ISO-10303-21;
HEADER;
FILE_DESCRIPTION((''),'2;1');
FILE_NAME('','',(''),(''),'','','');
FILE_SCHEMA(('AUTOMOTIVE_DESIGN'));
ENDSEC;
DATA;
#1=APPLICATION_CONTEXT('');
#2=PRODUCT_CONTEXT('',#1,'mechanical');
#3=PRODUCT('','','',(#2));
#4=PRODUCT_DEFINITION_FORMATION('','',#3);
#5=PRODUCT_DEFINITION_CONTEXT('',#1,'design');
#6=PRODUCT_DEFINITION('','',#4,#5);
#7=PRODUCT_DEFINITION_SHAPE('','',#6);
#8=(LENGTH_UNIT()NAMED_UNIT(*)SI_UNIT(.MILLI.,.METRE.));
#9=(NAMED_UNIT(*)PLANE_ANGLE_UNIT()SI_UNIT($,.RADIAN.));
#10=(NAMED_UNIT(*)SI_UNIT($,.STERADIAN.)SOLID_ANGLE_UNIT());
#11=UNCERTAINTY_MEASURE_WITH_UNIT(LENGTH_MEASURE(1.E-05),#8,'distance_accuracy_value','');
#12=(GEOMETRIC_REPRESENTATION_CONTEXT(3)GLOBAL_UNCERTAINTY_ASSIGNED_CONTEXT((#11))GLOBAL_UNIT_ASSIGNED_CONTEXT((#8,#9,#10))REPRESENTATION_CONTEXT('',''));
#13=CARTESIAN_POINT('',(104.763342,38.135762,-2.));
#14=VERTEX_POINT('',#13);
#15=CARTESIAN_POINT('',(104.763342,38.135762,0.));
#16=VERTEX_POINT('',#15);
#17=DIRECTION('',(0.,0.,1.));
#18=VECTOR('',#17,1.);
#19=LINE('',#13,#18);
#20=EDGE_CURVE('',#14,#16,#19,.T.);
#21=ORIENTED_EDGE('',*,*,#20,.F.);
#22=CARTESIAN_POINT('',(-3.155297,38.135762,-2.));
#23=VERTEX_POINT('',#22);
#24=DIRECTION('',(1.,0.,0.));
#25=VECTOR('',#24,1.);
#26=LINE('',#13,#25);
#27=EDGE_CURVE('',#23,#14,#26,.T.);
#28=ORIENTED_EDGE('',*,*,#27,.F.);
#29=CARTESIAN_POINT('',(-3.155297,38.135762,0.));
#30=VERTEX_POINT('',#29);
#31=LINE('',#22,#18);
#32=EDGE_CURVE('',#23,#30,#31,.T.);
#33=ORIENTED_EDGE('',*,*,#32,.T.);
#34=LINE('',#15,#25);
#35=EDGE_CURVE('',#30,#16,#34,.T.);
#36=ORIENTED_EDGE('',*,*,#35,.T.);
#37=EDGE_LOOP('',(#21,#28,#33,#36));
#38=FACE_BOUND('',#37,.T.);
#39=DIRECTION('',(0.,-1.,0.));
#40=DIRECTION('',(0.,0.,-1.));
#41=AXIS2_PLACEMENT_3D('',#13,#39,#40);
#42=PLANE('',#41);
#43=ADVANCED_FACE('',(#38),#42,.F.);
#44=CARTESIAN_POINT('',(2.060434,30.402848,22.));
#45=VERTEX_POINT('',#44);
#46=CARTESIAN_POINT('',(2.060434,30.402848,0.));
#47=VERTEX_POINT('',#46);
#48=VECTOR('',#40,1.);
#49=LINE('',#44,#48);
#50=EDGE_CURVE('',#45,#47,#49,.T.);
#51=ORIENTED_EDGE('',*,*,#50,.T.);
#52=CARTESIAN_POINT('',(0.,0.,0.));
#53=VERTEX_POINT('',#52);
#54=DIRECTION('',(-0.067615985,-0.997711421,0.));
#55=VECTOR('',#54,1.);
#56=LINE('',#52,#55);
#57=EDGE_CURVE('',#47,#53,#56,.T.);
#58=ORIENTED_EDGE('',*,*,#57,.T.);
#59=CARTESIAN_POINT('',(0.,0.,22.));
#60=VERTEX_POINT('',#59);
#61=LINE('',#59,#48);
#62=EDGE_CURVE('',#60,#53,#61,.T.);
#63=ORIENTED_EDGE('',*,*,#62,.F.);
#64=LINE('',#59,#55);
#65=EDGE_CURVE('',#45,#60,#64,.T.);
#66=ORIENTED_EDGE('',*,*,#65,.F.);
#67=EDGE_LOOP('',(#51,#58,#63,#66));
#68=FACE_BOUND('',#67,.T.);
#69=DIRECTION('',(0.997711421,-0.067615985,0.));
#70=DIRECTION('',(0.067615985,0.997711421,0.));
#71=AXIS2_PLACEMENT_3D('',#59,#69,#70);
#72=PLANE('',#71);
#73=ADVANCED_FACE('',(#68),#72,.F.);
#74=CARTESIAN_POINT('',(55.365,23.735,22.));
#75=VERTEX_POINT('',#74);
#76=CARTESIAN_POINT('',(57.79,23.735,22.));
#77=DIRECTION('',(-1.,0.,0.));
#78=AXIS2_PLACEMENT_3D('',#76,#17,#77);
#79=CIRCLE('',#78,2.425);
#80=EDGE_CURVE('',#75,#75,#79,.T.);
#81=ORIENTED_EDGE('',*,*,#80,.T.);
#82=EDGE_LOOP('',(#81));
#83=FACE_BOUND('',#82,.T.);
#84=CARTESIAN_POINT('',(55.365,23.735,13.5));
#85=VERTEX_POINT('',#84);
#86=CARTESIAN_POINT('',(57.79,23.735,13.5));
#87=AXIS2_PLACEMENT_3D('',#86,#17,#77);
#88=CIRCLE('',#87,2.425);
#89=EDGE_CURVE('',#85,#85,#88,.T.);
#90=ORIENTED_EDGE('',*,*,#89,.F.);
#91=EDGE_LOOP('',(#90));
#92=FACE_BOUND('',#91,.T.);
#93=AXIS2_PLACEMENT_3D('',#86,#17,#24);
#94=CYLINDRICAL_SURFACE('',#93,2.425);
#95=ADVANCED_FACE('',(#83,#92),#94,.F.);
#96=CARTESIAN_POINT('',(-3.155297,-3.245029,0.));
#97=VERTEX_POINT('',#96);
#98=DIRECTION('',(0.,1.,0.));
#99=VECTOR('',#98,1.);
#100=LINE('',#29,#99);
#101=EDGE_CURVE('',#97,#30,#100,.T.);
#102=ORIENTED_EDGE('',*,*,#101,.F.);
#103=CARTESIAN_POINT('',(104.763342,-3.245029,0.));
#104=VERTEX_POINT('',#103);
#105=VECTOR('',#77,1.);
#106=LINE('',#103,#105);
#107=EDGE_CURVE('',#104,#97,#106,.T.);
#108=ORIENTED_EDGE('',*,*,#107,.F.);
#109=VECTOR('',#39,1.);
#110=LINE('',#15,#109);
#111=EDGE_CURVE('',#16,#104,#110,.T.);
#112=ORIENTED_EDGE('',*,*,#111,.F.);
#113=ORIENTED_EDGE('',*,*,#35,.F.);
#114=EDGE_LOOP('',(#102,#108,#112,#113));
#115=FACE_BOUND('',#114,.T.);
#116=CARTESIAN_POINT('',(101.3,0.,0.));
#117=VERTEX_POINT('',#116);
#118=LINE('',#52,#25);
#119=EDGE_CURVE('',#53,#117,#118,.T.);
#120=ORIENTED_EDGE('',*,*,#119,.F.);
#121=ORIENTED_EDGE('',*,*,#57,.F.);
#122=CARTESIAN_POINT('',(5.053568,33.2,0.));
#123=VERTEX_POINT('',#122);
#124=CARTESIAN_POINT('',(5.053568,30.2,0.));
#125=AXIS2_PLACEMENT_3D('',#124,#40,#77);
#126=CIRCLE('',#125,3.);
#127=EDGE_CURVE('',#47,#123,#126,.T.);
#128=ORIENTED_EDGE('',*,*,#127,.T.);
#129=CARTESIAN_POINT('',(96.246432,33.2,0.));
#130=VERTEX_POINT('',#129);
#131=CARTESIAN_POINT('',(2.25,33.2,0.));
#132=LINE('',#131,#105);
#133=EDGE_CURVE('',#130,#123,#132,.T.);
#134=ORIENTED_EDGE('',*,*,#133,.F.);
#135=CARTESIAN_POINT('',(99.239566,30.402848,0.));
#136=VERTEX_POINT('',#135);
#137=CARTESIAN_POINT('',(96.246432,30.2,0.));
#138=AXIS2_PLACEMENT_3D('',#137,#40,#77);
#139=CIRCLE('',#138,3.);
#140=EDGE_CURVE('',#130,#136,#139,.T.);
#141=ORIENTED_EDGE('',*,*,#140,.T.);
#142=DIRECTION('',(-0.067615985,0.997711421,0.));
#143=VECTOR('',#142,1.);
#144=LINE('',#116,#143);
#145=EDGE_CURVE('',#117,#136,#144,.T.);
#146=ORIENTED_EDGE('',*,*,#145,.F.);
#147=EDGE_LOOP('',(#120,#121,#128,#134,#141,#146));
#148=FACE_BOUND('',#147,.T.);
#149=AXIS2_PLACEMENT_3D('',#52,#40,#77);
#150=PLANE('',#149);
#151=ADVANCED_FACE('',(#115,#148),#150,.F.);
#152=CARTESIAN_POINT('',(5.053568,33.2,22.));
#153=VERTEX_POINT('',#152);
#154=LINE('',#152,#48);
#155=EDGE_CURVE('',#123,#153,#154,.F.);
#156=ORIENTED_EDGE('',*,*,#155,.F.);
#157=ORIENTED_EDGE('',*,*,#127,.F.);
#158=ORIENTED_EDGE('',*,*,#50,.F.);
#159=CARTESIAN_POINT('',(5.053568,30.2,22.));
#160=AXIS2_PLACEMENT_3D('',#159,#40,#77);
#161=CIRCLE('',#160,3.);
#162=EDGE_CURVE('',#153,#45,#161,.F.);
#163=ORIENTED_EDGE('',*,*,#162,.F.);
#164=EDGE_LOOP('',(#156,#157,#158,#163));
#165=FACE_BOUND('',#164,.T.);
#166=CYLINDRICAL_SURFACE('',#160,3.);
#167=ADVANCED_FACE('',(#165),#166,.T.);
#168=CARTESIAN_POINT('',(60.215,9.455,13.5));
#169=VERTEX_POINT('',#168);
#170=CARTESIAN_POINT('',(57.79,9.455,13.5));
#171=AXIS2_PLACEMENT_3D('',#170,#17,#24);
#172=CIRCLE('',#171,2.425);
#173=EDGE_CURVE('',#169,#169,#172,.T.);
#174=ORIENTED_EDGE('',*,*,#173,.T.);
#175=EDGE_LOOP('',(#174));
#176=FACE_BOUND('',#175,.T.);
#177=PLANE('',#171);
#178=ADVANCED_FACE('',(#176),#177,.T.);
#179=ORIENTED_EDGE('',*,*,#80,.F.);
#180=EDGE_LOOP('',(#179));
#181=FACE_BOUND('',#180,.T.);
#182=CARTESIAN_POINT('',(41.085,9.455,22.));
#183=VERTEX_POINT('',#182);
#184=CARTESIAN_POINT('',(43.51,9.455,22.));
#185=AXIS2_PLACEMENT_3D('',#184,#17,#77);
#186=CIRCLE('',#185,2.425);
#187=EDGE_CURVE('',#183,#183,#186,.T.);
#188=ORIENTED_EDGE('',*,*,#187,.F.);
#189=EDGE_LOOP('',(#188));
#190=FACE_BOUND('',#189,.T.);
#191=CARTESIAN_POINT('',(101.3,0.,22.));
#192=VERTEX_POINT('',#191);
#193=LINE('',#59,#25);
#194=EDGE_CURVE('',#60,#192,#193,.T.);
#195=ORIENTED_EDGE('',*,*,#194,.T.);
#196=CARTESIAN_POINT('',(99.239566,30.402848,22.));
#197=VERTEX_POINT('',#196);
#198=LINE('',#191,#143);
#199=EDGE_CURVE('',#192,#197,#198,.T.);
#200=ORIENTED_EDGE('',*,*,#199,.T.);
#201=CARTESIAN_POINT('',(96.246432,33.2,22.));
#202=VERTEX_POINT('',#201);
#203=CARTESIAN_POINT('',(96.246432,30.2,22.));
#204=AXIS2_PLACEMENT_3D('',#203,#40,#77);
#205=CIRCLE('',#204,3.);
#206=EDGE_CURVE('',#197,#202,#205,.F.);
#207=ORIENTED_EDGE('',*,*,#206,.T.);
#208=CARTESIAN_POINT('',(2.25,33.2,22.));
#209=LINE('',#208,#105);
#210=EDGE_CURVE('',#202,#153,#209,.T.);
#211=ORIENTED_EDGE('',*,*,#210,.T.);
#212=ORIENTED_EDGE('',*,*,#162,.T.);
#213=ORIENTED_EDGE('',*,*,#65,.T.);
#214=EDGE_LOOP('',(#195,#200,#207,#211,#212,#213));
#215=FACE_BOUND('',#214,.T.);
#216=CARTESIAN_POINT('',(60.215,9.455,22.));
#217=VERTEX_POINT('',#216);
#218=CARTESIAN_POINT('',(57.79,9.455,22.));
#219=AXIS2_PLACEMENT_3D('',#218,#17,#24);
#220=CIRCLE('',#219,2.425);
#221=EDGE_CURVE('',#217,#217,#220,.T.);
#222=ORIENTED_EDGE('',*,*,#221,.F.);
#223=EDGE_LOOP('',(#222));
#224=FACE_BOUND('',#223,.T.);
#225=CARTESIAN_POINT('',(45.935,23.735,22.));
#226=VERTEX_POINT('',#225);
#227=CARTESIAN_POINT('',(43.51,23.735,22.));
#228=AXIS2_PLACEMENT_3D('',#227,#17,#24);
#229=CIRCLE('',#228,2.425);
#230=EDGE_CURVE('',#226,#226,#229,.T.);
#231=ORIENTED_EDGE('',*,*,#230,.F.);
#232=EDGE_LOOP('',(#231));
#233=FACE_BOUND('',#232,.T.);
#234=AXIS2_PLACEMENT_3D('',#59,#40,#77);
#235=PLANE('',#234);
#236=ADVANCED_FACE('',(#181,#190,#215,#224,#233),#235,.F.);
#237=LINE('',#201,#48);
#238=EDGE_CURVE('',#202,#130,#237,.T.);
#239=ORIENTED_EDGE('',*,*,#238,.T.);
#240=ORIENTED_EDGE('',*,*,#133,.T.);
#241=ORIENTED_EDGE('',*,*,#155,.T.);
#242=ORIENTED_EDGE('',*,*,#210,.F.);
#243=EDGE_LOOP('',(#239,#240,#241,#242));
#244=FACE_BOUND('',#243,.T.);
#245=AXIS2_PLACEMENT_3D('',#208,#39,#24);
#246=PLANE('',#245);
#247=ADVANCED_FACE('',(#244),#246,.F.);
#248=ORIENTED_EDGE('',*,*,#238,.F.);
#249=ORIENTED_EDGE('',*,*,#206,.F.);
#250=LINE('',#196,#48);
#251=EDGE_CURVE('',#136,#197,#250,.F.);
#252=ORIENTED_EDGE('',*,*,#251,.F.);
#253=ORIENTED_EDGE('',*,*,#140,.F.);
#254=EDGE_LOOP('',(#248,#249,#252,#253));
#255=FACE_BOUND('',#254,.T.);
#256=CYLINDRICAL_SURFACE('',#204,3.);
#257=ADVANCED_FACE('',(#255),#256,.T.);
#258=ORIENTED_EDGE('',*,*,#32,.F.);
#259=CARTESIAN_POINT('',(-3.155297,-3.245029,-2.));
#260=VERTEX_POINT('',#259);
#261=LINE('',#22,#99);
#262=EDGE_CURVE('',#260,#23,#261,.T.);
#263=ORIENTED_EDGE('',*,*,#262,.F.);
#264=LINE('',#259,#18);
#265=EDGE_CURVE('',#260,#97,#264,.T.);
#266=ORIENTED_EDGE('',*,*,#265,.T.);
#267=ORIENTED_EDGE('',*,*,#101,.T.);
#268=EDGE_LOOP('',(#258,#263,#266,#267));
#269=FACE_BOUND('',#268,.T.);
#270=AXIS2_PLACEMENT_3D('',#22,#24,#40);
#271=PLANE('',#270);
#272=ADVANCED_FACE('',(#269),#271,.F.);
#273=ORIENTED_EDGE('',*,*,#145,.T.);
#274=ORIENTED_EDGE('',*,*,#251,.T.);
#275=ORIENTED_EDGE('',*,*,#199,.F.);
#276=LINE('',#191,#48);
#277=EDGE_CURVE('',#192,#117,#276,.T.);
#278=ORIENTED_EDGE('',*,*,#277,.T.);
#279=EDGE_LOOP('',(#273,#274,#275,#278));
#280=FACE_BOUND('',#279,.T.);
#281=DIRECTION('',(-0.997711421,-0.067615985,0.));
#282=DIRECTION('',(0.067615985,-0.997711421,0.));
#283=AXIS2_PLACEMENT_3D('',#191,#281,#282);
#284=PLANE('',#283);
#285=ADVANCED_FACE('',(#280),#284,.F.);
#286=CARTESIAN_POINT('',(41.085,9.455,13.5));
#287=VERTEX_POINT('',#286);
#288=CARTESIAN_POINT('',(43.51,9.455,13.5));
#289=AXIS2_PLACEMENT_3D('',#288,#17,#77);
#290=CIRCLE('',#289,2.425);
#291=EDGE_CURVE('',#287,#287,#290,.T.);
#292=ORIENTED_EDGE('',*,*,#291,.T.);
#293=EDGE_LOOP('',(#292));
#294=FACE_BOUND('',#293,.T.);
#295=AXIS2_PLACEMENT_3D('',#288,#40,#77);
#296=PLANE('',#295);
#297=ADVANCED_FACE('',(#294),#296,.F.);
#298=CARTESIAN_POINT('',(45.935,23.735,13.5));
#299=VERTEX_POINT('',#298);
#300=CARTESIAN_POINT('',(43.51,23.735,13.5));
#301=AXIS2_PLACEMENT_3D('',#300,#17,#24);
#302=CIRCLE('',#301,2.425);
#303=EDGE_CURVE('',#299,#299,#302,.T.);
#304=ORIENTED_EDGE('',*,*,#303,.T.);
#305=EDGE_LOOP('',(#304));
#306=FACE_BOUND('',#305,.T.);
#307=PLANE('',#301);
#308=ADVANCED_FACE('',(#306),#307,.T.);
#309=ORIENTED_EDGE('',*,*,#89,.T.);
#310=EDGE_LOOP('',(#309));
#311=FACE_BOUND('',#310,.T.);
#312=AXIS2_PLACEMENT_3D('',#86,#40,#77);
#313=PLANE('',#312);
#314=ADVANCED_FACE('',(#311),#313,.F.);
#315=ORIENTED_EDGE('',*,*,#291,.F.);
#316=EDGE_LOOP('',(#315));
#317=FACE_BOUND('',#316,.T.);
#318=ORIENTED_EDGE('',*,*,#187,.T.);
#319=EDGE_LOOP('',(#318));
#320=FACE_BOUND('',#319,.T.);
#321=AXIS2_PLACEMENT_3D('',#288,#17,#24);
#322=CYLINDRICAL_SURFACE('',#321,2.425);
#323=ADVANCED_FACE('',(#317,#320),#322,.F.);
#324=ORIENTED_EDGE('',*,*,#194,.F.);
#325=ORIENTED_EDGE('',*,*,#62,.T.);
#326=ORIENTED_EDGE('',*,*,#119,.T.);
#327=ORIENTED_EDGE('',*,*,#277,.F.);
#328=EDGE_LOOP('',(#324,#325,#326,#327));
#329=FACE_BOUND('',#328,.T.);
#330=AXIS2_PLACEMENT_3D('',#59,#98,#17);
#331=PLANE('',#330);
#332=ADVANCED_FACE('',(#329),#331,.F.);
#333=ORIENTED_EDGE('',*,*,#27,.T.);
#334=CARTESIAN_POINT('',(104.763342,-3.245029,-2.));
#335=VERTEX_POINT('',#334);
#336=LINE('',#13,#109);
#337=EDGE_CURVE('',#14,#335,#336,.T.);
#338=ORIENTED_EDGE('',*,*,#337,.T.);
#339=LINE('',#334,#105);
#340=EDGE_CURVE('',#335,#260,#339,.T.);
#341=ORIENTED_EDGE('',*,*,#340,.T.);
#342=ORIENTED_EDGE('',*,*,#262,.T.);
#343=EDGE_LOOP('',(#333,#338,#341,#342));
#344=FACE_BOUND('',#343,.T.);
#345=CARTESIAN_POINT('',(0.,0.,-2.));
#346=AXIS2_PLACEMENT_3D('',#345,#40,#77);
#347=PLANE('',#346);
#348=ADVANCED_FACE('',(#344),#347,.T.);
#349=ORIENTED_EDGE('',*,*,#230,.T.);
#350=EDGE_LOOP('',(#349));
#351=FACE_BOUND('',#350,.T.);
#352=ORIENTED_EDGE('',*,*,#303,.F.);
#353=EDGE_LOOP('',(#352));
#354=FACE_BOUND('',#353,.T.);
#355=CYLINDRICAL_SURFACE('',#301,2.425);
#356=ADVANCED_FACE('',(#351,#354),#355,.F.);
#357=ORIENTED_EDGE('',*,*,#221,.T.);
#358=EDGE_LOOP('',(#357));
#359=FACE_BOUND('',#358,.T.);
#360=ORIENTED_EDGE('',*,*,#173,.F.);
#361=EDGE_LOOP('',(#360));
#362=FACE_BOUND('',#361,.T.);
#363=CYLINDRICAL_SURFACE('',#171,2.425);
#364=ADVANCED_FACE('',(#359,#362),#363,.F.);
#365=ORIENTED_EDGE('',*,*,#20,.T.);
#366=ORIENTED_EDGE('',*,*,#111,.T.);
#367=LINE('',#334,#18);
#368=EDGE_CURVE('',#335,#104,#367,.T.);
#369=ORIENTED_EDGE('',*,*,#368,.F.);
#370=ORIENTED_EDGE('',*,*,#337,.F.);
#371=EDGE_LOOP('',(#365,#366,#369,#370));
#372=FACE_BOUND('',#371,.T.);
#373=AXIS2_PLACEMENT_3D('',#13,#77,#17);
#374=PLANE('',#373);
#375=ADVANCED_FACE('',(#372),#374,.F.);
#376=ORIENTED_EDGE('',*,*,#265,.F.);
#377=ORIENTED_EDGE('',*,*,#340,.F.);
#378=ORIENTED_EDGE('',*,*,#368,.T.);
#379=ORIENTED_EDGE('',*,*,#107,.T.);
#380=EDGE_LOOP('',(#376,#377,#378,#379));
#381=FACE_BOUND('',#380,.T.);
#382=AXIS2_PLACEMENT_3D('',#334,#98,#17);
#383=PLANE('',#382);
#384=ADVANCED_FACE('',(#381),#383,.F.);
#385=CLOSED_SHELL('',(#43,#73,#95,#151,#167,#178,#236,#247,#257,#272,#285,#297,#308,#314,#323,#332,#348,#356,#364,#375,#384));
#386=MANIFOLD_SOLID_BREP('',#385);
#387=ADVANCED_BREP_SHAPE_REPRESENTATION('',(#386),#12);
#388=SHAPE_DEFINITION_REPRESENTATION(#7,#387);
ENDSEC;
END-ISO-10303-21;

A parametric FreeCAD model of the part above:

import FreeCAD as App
import Part
import Sketcher
from FreeCAD import Vector
Q = App.Units.Quantity


def edges_at(feature, points):
    """Names of the edges that pass closest to the given points."""
    edges = feature.Shape.Edges
    near = lambda p: min(range(len(edges)), key=lambda i: edges[i].distToShape(Part.Vertex(*p))[0])
    return sorted({f"Edge{near(p) + 1}" for p in points})

doc = App.newDocument("Part")
body = doc.addObject("PartDesign::Body", "Body")

# Sketch on XY plane
sketch1 = body.newObject("Sketcher::SketchObject", "Sketch")
sketch1.AttachmentSupport = (doc.getObject("XY_Plane"), [""])
sketch1.MapMode = "FlatFace"
sketch1.addGeometry([
    Part.LineSegment(Vector(0, 0, 0), Vector(101.3, 0, 0)),
    Part.LineSegment(Vector(101.3, 0, 0), Vector(99.05, 33.2, 0)),
    Part.LineSegment(Vector(99.05, 33.2, 0), Vector(2.25, 33.2, 0)),
    Part.LineSegment(Vector(2.25, 33.2, 0), Vector(0, 0, 0)),
], False)
sketch1.addConstraint([
    Sketcher.Constraint("Coincident", 0, 2, 1, 1),
    Sketcher.Constraint("Coincident", 1, 2, 2, 1),
    Sketcher.Constraint("Coincident", 2, 2, 3, 1),
    Sketcher.Constraint("Coincident", 3, 2, 0, 1),
    Sketcher.Constraint("Horizontal", 0),
    Sketcher.Constraint("Horizontal", 2),
    Sketcher.Constraint("Coincident", 3, 2, -1, 1),
    Sketcher.Constraint("Equal", 1, 3),
    Sketcher.Constraint("DistanceX", 0, 1, 0, 2, Q("101.3 mm")),
    Sketcher.Constraint("DistanceX", 2, 2, 2, 1, Q("96.8 mm")),
    Sketcher.Constraint("DistanceY", -1, 1, 1, 2, Q("33.2 mm")),
])
pad1 = body.newObject("PartDesign::Pad", "Pad")
pad1.Profile = sketch1
pad1.Length = 22
doc.recompute()

fillet = body.newObject("PartDesign::Fillet", "Fillet")
fillet.Base = (pad1, edges_at(pad1, [(2.25, 33.2, 11), (99.05, 33.2, 11)]))
fillet.Radius = 3

# Sketch on XY plane
sketch2 = body.newObject("Sketcher::SketchObject", "Sketch001")
sketch2.AttachmentSupport = (doc.getObject("XY_Plane"), [""])
sketch2.MapMode = "FlatFace"
sketch2.addGeometry([
    Part.LineSegment(Vector(104.763342, 38.135762, 0), Vector(104.763342, -3.245029, 0)),
    Part.LineSegment(Vector(104.763342, -3.245029, 0), Vector(-3.155297, -3.245029, 0)),
    Part.LineSegment(Vector(-3.155297, -3.245029, 0), Vector(-3.155297, 38.135762, 0)),
    Part.LineSegment(Vector(-3.155297, 38.135762, 0), Vector(104.763342, 38.135762, 0)),
], False)
sketch2.addConstraint([
    Sketcher.Constraint("Coincident", 0, 2, 1, 1),
    Sketcher.Constraint("Coincident", 1, 2, 2, 1),
    Sketcher.Constraint("Coincident", 2, 2, 3, 1),
    Sketcher.Constraint("Coincident", 3, 2, 0, 1),
    Sketcher.Constraint("Vertical", 0),
    Sketcher.Constraint("Horizontal", 1),
    Sketcher.Constraint("Vertical", 2),
    Sketcher.Constraint("Horizontal", 3),
    Sketcher.Constraint("DistanceX", 1, 2, 1, 1, Q("107.918639 mm")),
    Sketcher.Constraint("DistanceY", 0, 2, 0, 1, Q("41.380791 mm")),
    Sketcher.Constraint("DistanceY", 0, 2, -1, 1, Q("3.245029 mm")),
    Sketcher.Constraint("DistanceX", -1, 1, 0, 2, Q("104.763342 mm")),
])
pad2 = body.newObject("PartDesign::Pad", "Pad001")
pad2.Profile = sketch2
pad2.Length = 2
pad2.Reversed = True

# Sketch on XY plane
sketch3 = body.newObject("Sketcher::SketchObject", "Sketch002")
sketch3.AttachmentSupport = (doc.getObject("XY_Plane"), [""])
sketch3.MapMode = "FlatFace"
sketch3.AttachmentOffset = App.Placement(Vector(0, 0, 22), App.Rotation())
sketch3.addGeometry([
    Part.Circle(Vector(57.79, 9.455, 0), Vector(0, 0, 1), 2.425),
    Part.Circle(Vector(43.51, 9.455, 0), Vector(0, 0, 1), 2.425),
    Part.Circle(Vector(57.79, 23.735, 0), Vector(0, 0, 1), 2.425),
    Part.Circle(Vector(43.51, 23.735, 0), Vector(0, 0, 1), 2.425),
], False)
sketch3.addConstraint([
    Sketcher.Constraint("Equal", 0, 1),
    Sketcher.Constraint("Equal", 1, 2),
    Sketcher.Constraint("Equal", 2, 3),
    Sketcher.Constraint("Horizontal", 0, 3, 1, 3),
    Sketcher.Constraint("Horizontal", 2, 3, 3, 3),
    Sketcher.Constraint("Vertical", 0, 3, 2, 3),
    Sketcher.Constraint("Vertical", 1, 3, 3, 3),
    Sketcher.Constraint("Diameter", 0, Q("4.85 mm")),
    Sketcher.Constraint("DistanceX", -1, 1, 0, 3, Q("57.79 mm")),
    Sketcher.Constraint("DistanceX", -1, 1, 1, 3, Q("43.51 mm")),
    Sketcher.Constraint("DistanceY", 0, 3, 2, 3, Q("14.28 mm")),
    Sketcher.Constraint("DistanceY", -1, 1, 0, 3, Q("9.455 mm")),
])
pocket1 = body.newObject("PartDesign::Pocket", "Pocket")
pocket1.Profile = sketch3
pocket1.Length = 8.5

doc.recompute()
